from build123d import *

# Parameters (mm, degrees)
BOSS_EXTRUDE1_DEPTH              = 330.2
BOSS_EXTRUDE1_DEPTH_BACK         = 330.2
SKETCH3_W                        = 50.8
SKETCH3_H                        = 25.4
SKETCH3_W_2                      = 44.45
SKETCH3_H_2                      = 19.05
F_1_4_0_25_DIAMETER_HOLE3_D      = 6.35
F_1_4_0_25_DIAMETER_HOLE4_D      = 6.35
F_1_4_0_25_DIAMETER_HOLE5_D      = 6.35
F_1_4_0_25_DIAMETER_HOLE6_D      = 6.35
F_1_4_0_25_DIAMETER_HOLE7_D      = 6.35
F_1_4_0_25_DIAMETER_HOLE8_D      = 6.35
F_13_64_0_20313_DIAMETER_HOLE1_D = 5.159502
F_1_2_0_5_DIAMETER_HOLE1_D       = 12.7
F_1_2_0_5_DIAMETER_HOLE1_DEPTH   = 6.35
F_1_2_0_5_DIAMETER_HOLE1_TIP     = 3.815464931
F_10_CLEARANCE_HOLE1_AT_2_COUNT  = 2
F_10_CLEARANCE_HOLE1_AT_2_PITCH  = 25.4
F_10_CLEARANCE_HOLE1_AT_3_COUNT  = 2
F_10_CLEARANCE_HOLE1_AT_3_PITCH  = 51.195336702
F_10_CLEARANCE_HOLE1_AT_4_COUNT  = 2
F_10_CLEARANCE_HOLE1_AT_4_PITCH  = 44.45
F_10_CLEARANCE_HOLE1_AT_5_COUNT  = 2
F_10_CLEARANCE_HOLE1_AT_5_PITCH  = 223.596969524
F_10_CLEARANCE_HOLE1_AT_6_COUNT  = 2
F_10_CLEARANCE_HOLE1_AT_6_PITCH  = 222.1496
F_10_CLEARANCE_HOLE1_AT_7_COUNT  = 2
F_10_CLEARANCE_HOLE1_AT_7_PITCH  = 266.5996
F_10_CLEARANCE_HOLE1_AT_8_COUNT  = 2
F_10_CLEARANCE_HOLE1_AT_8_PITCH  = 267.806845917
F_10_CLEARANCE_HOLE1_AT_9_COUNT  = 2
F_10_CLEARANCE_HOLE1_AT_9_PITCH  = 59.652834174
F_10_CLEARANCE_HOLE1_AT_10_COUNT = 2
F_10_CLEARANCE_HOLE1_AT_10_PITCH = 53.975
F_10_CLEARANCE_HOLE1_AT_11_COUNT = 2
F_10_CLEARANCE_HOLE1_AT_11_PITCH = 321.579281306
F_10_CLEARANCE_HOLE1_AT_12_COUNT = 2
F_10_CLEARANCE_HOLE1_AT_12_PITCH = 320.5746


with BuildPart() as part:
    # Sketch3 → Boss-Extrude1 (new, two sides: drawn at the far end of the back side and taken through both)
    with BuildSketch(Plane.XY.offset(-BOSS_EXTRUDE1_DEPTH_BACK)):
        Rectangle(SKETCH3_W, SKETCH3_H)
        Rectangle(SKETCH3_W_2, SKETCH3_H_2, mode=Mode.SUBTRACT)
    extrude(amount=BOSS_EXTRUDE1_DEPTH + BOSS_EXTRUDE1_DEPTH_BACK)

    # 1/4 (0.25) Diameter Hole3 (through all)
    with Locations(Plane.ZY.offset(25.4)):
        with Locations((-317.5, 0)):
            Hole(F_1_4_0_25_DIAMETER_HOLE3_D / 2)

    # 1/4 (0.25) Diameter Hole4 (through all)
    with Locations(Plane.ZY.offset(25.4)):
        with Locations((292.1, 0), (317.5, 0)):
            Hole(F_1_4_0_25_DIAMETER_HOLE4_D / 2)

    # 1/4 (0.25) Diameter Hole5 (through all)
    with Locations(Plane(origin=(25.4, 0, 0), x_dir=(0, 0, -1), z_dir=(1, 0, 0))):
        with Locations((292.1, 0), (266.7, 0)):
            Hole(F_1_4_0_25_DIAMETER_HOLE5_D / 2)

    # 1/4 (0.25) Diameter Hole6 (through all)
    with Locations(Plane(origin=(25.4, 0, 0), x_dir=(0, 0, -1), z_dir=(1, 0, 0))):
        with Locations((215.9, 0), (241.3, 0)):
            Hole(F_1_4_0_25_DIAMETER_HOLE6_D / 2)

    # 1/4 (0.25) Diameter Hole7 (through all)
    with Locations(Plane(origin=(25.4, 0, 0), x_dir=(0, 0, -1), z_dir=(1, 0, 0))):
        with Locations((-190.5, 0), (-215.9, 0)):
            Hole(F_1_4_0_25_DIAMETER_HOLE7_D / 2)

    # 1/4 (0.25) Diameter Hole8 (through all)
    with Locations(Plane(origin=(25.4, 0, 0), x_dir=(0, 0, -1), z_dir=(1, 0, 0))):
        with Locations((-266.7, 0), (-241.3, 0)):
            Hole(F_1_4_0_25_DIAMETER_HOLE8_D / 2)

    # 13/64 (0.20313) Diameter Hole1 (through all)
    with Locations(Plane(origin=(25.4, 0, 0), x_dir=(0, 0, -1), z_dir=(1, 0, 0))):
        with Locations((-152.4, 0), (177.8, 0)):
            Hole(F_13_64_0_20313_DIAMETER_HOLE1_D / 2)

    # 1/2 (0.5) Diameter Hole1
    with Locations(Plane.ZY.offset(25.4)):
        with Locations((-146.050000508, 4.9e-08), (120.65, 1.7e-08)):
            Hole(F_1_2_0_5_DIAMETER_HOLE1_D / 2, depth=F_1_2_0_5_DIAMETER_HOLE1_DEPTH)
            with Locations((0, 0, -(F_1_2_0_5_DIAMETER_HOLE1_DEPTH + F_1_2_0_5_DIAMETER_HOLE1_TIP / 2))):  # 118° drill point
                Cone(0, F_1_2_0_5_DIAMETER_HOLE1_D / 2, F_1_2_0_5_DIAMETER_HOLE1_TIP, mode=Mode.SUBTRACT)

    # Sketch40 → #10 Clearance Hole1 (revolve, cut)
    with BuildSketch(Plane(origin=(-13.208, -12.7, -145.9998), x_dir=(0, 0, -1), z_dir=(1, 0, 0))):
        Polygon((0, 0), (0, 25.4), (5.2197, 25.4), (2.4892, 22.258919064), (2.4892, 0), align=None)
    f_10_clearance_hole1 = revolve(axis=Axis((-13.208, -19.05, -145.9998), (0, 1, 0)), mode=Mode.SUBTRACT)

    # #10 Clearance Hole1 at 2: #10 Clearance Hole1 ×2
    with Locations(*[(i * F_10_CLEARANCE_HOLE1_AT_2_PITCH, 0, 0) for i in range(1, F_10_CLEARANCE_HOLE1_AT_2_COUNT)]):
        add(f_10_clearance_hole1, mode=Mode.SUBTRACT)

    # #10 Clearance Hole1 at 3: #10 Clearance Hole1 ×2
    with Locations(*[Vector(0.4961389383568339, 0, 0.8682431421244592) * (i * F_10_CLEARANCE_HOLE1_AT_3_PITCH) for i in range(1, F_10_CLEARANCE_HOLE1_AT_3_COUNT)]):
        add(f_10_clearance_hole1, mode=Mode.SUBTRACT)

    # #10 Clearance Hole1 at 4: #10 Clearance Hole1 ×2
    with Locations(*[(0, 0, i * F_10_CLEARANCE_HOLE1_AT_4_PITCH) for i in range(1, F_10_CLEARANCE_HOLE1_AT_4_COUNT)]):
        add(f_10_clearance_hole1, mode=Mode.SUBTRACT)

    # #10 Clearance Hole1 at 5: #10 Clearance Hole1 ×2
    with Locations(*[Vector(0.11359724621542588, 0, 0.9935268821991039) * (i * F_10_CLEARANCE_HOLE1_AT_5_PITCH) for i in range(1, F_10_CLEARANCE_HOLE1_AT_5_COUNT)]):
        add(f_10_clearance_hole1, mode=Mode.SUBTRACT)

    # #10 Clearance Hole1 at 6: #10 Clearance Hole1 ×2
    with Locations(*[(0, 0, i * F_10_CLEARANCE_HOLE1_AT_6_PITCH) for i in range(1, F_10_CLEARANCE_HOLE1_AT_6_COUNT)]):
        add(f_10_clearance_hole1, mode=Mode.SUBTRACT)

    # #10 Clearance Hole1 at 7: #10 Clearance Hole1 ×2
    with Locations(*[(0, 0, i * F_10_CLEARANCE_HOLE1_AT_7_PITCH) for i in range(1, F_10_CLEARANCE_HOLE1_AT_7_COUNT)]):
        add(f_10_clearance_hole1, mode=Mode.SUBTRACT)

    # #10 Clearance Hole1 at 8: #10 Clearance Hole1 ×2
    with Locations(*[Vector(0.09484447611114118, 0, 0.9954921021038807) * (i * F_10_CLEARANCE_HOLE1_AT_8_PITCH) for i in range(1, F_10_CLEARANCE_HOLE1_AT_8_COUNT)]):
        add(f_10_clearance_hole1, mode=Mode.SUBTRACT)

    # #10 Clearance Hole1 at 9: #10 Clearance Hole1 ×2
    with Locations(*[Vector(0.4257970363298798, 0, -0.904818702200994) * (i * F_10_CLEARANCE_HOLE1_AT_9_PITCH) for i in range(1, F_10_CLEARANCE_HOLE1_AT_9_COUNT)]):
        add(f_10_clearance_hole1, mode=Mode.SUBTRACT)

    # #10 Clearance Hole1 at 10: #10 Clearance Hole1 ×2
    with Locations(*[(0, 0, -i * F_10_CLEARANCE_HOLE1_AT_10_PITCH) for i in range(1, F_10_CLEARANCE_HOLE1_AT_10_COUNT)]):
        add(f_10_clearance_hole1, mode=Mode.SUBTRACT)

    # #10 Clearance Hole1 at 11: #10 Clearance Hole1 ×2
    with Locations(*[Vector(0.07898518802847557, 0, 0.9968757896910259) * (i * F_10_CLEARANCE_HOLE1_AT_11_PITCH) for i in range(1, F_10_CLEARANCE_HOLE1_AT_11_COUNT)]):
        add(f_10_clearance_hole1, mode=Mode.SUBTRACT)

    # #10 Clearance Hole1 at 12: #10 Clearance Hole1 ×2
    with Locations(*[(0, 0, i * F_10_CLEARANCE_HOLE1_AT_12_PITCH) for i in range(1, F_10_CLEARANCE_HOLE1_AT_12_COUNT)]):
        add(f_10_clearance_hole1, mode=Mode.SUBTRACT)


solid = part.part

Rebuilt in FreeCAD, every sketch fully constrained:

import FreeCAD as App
import Part
import Sketcher
from FreeCAD import Vector
Q = App.Units.Quantity

doc = App.newDocument("Part")
body = doc.addObject("PartDesign::Body", "Body")

sketch1 = doc.addObject("Sketcher::SketchObject", "Sketch")
body.addObject(sketch1)
sketch1.AttachmentSupport = (doc.XY_Plane, [""])
sketch1.MapMode = "FlatFace"
sketch1.addGeometry(Part.LineSegment(Vector(-25.4, 12.7, 0), Vector(-25.4, -12.7, 0)), False)
sketch1.addGeometry(Part.LineSegment(Vector(-25.4, -12.7, 0), Vector(25.4, -12.7, 0)), False)
sketch1.addGeometry(Part.LineSegment(Vector(25.4, -12.7, 0), Vector(25.4, 12.7, 0)), False)
sketch1.addGeometry(Part.LineSegment(Vector(25.4, 12.7, 0), Vector(-25.4, 12.7, 0)), False)
sketch1.addGeometry(Part.LineSegment(Vector(22.225, -9.525, 0), Vector(-22.225, -9.525, 0)), False)
sketch1.addGeometry(Part.LineSegment(Vector(-22.225, -9.525, 0), Vector(-22.225, 9.525, 0)), False)
sketch1.addGeometry(Part.LineSegment(Vector(-22.225, 9.525, 0), Vector(22.225, 9.525, 0)), False)
sketch1.addGeometry(Part.LineSegment(Vector(22.225, 9.525, 0), Vector(22.225, -9.525, 0)), False)
sketch1.addConstraint(Sketcher.Constraint("Coincident", 0, 2, 1, 1))
sketch1.addConstraint(Sketcher.Constraint("Coincident", 1, 2, 2, 1))
sketch1.addConstraint(Sketcher.Constraint("Coincident", 2, 2, 3, 1))
sketch1.addConstraint(Sketcher.Constraint("Coincident", 3, 2, 0, 1))
sketch1.addConstraint(Sketcher.Constraint("Coincident", 4, 2, 5, 1))
sketch1.addConstraint(Sketcher.Constraint("Coincident", 5, 2, 6, 1))
sketch1.addConstraint(Sketcher.Constraint("Coincident", 6, 2, 7, 1))
sketch1.addConstraint(Sketcher.Constraint("Coincident", 7, 2, 4, 1))
sketch1.addConstraint(Sketcher.Constraint("Vertical", 0))
sketch1.addConstraint(Sketcher.Constraint("Horizontal", 1))
sketch1.addConstraint(Sketcher.Constraint("Vertical", 2))
sketch1.addConstraint(Sketcher.Constraint("Horizontal", 3))
sketch1.addConstraint(Sketcher.Constraint("Horizontal", 4))
sketch1.addConstraint(Sketcher.Constraint("Vertical", 5))
sketch1.addConstraint(Sketcher.Constraint("Horizontal", 6))
sketch1.addConstraint(Sketcher.Constraint("Vertical", 7))
sketch1.addConstraint(Sketcher.Constraint("Symmetric", 0, 2, 2, 2, -1, 1))
sketch1.addConstraint(Sketcher.Constraint("Symmetric", 4, 2, 6, 2, -1, 1))
sketch1.addConstraint(Sketcher.Constraint("DistanceX", 1, 1, 1, 2, Q("2 in")))
sketch1.addConstraint(Sketcher.Constraint("DistanceY", 0, 2, 0, 1, Q("1 in")))
sketch1.addConstraint(Sketcher.Constraint("DistanceX", 4, 2, 4, 1, Q("1.75 in")))
sketch1.addConstraint(Sketcher.Constraint("DistanceY", 5, 1, 5, 2, Q("0.75 in")))
pad1 = doc.addObject("PartDesign::Pad", "Pad")
body.addObject(pad1)
pad1.Profile = sketch1
pad1.Type = "TwoLengths"
pad1.Length = Q("13 in")
pad1.Length2 = Q("13 in")

sketch2 = doc.addObject("Sketcher::SketchObject", "Sketch001")
body.addObject(sketch2)
sketch2.AttachmentSupport = (doc.YZ_Plane, [""])
sketch2.MapMode = "FlatFace"
sketch2.AttachmentOffset = App.Placement(Vector(0, 0, -1 * 25.4), App.Rotation())
sketch2.addGeometry(Part.Circle(Vector(0, -317.5, 0), Vector(0, 0, 1), 3.175), False)
sketch2.addConstraint(Sketcher.Constraint("PointOnObject", 0, 3, -2))
sketch2.addConstraint(Sketcher.Constraint("Diameter", 0, Q("0.25 in")))
sketch2.addConstraint(Sketcher.Constraint("DistanceY", 0, 3, -1, 1, Q("12.5 in")))
doc.recompute()
hole = doc.addObject("PartDesign::Hole", "Hole")
body.addObject(hole)
hole.Profile = sketch2
hole.ThreadType = "None"
hole.Diameter = Q("0.25 in")
hole.DepthType = "ThroughAll"
hole.Reversed = True

sketch3 = doc.addObject("Sketcher::SketchObject", "Sketch002")
body.addObject(sketch3)
sketch3.AttachmentSupport = (doc.YZ_Plane, [""])
sketch3.MapMode = "FlatFace"
sketch3.AttachmentOffset = App.Placement(Vector(0, 0, -1 * 25.4), App.Rotation())
sketch3.addGeometry(Part.Circle(Vector(0, 292.1, 0), Vector(0, 0, 1), 3.175), False)
sketch3.addGeometry(Part.Circle(Vector(0, 317.5, 0), Vector(0, 0, 1), 3.175), False)
sketch3.addConstraint(Sketcher.Constraint("Equal", 0, 1))
sketch3.addConstraint(Sketcher.Constraint("PointOnObject", 0, 3, -2))
sketch3.addConstraint(Sketcher.Constraint("PointOnObject", 1, 3, -2))
sketch3.addConstraint(Sketcher.Constraint("Diameter", 0, Q("0.25 in")))
sketch3.addConstraint(Sketcher.Constraint("DistanceY", 0, 3, 1, 3, Q("1 in")))
sketch3.addConstraint(Sketcher.Constraint("DistanceY", -1, 1, 0, 3, Q("11.5 in")))
doc.recompute()
hole2 = doc.addObject("PartDesign::Hole", "Hole001")
body.addObject(hole2)
hole2.Profile = sketch3
hole2.ThreadType = "None"
hole2.Diameter = Q("0.25 in")
hole2.DepthType = "ThroughAll"
hole2.Reversed = True

sketch4 = doc.addObject("Sketcher::SketchObject", "Sketch003")
body.addObject(sketch4)
sketch4.AttachmentSupport = (doc.YZ_Plane, [""])
sketch4.MapMode = "FlatFace"
sketch4.AttachmentOffset = App.Placement(Vector(0, 0, 1 * 25.4), App.Rotation())
sketch4.addGeometry(Part.Circle(Vector(0, -292.1, 0), Vector(0, 0, 1), 3.175), False)
sketch4.addGeometry(Part.Circle(Vector(0, -266.7, 0), Vector(0, 0, 1), 3.175), False)
sketch4.addConstraint(Sketcher.Constraint("Equal", 0, 1))
sketch4.addConstraint(Sketcher.Constraint("PointOnObject", 0, 3, -2))
sketch4.addConstraint(Sketcher.Constraint("PointOnObject", 1, 3, -2))
sketch4.addConstraint(Sketcher.Constraint("Diameter", 0, Q("0.25 in")))
sketch4.addConstraint(Sketcher.Constraint("DistanceY", 0, 3, 1, 3, Q("1 in")))
sketch4.addConstraint(Sketcher.Constraint("DistanceY", 0, 3, -1, 1, Q("11.5 in")))
doc.recompute()
hole3 = doc.addObject("PartDesign::Hole", "Hole002")
body.addObject(hole3)
hole3.Profile = sketch4
hole3.ThreadType = "None"
hole3.Diameter = Q("0.25 in")
hole3.DepthType = "ThroughAll"

sketch5 = doc.addObject("Sketcher::SketchObject", "Sketch004")
body.addObject(sketch5)
sketch5.AttachmentSupport = (doc.YZ_Plane, [""])
sketch5.MapMode = "FlatFace"
sketch5.AttachmentOffset = App.Placement(Vector(0, 0, 1 * 25.4), App.Rotation())
sketch5.addGeometry(Part.Circle(Vector(0, -215.9, 0), Vector(0, 0, 1), 3.175), False)
sketch5.addGeometry(Part.Circle(Vector(0, -241.3, 0), Vector(0, 0, 1), 3.175), False)
sketch5.addConstraint(Sketcher.Constraint("Equal", 0, 1))
sketch5.addConstraint(Sketcher.Constraint("PointOnObject", 0, 3, -2))
sketch5.addConstraint(Sketcher.Constraint("PointOnObject", 1, 3, -2))
sketch5.addConstraint(Sketcher.Constraint("Diameter", 0, Q("0.25 in")))
sketch5.addConstraint(Sketcher.Constraint("DistanceY", 1, 3, 0, 3, Q("1 in")))
sketch5.addConstraint(Sketcher.Constraint("DistanceY", 0, 3, -1, 1, Q("8.5 in")))
doc.recompute()
hole4 = doc.addObject("PartDesign::Hole", "Hole003")
body.addObject(hole4)
hole4.Profile = sketch5
hole4.ThreadType = "None"
hole4.Diameter = Q("0.25 in")
hole4.DepthType = "ThroughAll"

sketch6 = doc.addObject("Sketcher::SketchObject", "Sketch005")
body.addObject(sketch6)
sketch6.AttachmentSupport = (doc.YZ_Plane, [""])
sketch6.MapMode = "FlatFace"
sketch6.AttachmentOffset = App.Placement(Vector(0, 0, 1 * 25.4), App.Rotation())
sketch6.addGeometry(Part.Circle(Vector(0, 190.5, 0), Vector(0, 0, 1), 3.175), False)
sketch6.addGeometry(Part.Circle(Vector(0, 215.9, 0), Vector(0, 0, 1), 3.175), False)
sketch6.addConstraint(Sketcher.Constraint("Equal", 0, 1))
sketch6.addConstraint(Sketcher.Constraint("PointOnObject", 0, 3, -2))
sketch6.addConstraint(Sketcher.Constraint("PointOnObject", 1, 3, -2))
sketch6.addConstraint(Sketcher.Constraint("Diameter", 0, Q("0.25 in")))
sketch6.addConstraint(Sketcher.Constraint("DistanceY", 0, 3, 1, 3, Q("1 in")))
sketch6.addConstraint(Sketcher.Constraint("DistanceY", -1, 1, 0, 3, Q("7.5 in")))
doc.recompute()
hole5 = doc.addObject("PartDesign::Hole", "Hole004")
body.addObject(hole5)
hole5.Profile = sketch6
hole5.ThreadType = "None"
hole5.Diameter = Q("0.25 in")
hole5.DepthType = "ThroughAll"

sketch7 = doc.addObject("Sketcher::SketchObject", "Sketch006")
body.addObject(sketch7)
sketch7.AttachmentSupport = (doc.YZ_Plane, [""])
sketch7.MapMode = "FlatFace"
sketch7.AttachmentOffset = App.Placement(Vector(0, 0, 1 * 25.4), App.Rotation())
sketch7.addGeometry(Part.Circle(Vector(0, 266.7, 0), Vector(0, 0, 1), 3.175), False)
sketch7.addGeometry(Part.Circle(Vector(0, 241.3, 0), Vector(0, 0, 1), 3.175), False)
sketch7.addConstraint(Sketcher.Constraint("Equal", 0, 1))
sketch7.addConstraint(Sketcher.Constraint("PointOnObject", 0, 3, -2))
sketch7.addConstraint(Sketcher.Constraint("PointOnObject", 1, 3, -2))
sketch7.addConstraint(Sketcher.Constraint("Diameter", 0, Q("0.25 in")))
sketch7.addConstraint(Sketcher.Constraint("DistanceY", 1, 3, 0, 3, Q("1 in")))
sketch7.addConstraint(Sketcher.Constraint("DistanceY", -1, 1, 0, 3, Q("10.5 in")))
doc.recompute()
hole6 = doc.addObject("PartDesign::Hole", "Hole005")
body.addObject(hole6)
hole6.Profile = sketch7
hole6.ThreadType = "None"
hole6.Diameter = Q("0.25 in")
hole6.DepthType = "ThroughAll"

sketch8 = doc.addObject("Sketcher::SketchObject", "Sketch007")
body.addObject(sketch8)
sketch8.AttachmentSupport = (doc.YZ_Plane, [""])
sketch8.MapMode = "FlatFace"
sketch8.AttachmentOffset = App.Placement(Vector(0, 0, 1 * 25.4), App.Rotation())
sketch8.addGeometry(Part.Circle(Vector(0, 152.4, 0), Vector(0, 0, 1), 2.579751), False)
sketch8.addGeometry(Part.Circle(Vector(0, -177.8, 0), Vector(0, 0, 1), 2.579751), False)
sketch8.addConstraint(Sketcher.Constraint("Equal", 0, 1))
sketch8.addConstraint(Sketcher.Constraint("PointOnObject", 0, 3, -2))
sketch8.addConstraint(Sketcher.Constraint("PointOnObject", 1, 3, -2))
sketch8.addConstraint(Sketcher.Constraint("DistanceY", -1, 1, 0, 3, Q("6 in")))
sketch8.addConstraint(Sketcher.Constraint("DistanceY", 1, 3, -1, 1, Q("7 in")))
sketch8.addConstraint(Sketcher.Constraint("Diameter", 0, 5.159502))
doc.recompute()
hole7 = doc.addObject("PartDesign::Hole", "Hole006")
body.addObject(hole7)
hole7.Profile = sketch8
hole7.ThreadType = "None"
hole7.Diameter = 5.159502
hole7.DepthType = "ThroughAll"

sketch9 = doc.addObject("Sketcher::SketchObject", "Sketch008")
body.addObject(sketch9)
sketch9.AttachmentSupport = (doc.YZ_Plane, [""])
sketch9.MapMode = "FlatFace"
sketch9.AttachmentOffset = App.Placement(Vector(0, 0, -1 * 25.4), App.Rotation())
sketch9.addGeometry(Part.Circle(Vector(0, -146.050001, 0), Vector(0, 0, 1), 6.35), False)
sketch9.addGeometry(Part.Circle(Vector(0, 120.65, 0), Vector(0, 0, 1), 6.35), False)
sketch9.addConstraint(Sketcher.Constraint("Equal", 0, 1))
sketch9.addConstraint(Sketcher.Constraint("PointOnObject", 0, 3, -2))
sketch9.addConstraint(Sketcher.Constraint("PointOnObject", 1, 3, -2))
sketch9.addConstraint(Sketcher.Constraint("Diameter", 0, Q("0.5 in")))
sketch9.addConstraint(Sketcher.Constraint("DistanceY", 0, 3, 1, 3, Q("10.5 in")))
sketch9.addConstraint(Sketcher.Constraint("DistanceY", 0, 3, -1, 1, Q("5.75 in")))
doc.recompute()
hole8 = doc.addObject("PartDesign::Hole", "Hole007")
body.addObject(hole8)
hole8.Profile = sketch9
hole8.ThreadType = "None"
hole8.Diameter = Q("0.5 in")
hole8.DepthType = "Dimension"
hole8.Depth = Q("0.25 in")
hole8.DrillPoint = "Angled"
hole8.DrillPointAngle = 118
hole8.Reversed = True

sketch10 = doc.addObject("Sketcher::SketchObject", "Sketch009")
body.addObject(sketch10)
sketch10.AttachmentSupport = (doc.YZ_Plane, [""])
sketch10.MapMode = "FlatFace"
sketch10.AttachmentOffset = App.Placement(Vector(0, 0, -0.52 * 25.4), App.Rotation())
sketch10.addGeometry(Part.LineSegment(Vector(12.7, -145.9998, 0), Vector(-12.7, -145.9998, 0)), False)
sketch10.addGeometry(Part.LineSegment(Vector(-12.7, -145.9998, 0), Vector(-12.7, -148.489, 0)), False)
sketch10.addGeometry(Part.LineSegment(Vector(-12.7, -148.489, 0), Vector(9.558919, -148.489, 0)), False)
sketch10.addGeometry(Part.LineSegment(Vector(9.558919, -148.489, 0), Vector(12.7, -151.2195, 0)), False)
sketch10.addGeometry(Part.LineSegment(Vector(12.7, -151.2195, 0), Vector(12.7, -145.9998, 0)), False)
sketch10.addGeometry(Part.LineSegment(Vector(-12.7, -145.9998, 0), Vector(12.7, -145.9998, 0)), True)
sketch10.addConstraint(Sketcher.Constraint("Coincident", 0, 2, 1, 1))
sketch10.addConstraint(Sketcher.Constraint("Coincident", 1, 2, 2, 1))
sketch10.addConstraint(Sketcher.Constraint("Coincident", 2, 2, 3, 1))
sketch10.addConstraint(Sketcher.Constraint("Coincident", 3, 2, 4, 1))
sketch10.addConstraint(Sketcher.Constraint("Coincident", 4, 2, 0, 1))
sketch10.addConstraint(Sketcher.Constraint("Horizontal", 0))
sketch10.addConstraint(Sketcher.Constraint("Vertical", 1))
sketch10.addConstraint(Sketcher.Constraint("Horizontal", 2))
sketch10.addConstraint(Sketcher.Constraint("Vertical", 4))
sketch10.addConstraint(Sketcher.Constraint("Horizontal", 5))
sketch10.addConstraint(Sketcher.Constraint("Coincident", 5, 1, 0, 2))
sketch10.addConstraint(Sketcher.Constraint("Vertical", 3, 2, 5, 2))
sketch10.addConstraint(Sketcher.Constraint("DistanceX", 0, 2, 0, 1, Q("1 in")))
sketch10.addConstraint(Sketcher.Constraint("Angle", 3, Q("-41 deg")))
sketch10.addConstraint(Sketcher.Constraint("DistanceX", 0, 2, -1, 1, Q("0.5 in")))
sketch10.addConstraint(Sketcher.Constraint("DistanceY", 1, 2, 1, 1, Q("0.098 in")))
sketch10.addConstraint(Sketcher.Constraint("DistanceY", 4, 1, 4, 2, Q("0.2055 in")))
sketch10.addConstraint(Sketcher.Constraint("DistanceY", 0, 2, -1, 1, 145.9998))
groove = doc.addObject("PartDesign::Groove", "Groove")
body.addObject(groove)
groove.Profile = sketch10
groove.ReferenceAxis = (sketch10, ["Axis0"])
groove.Angle = 360
doc.recompute()

linearpattern = doc.addObject("PartDesign::LinearPattern", "LinearPattern")
body.addObject(linearpattern)
linearpattern.Originals = [groove]
linearpattern.Direction = (doc.X_Axis, [""])
linearpattern.Mode = "offset"
linearpattern.Offset = Q("1 in")
linearpattern.Occurrences = 2
body.Tip = linearpattern
doc.recompute()

datumline = doc.addObject("PartDesign::Line", "DatumLine")
body.addObject(datumline)
datumline.Placement = App.Placement(Vector(0, 0, 0), App.Rotation(Vector(0, 0, 1), Vector(0.496138938, 0, 0.868243142)))
linearpattern2 = doc.addObject("PartDesign::LinearPattern", "LinearPattern001")
body.addObject(linearpattern2)
linearpattern2.Originals = [groove]
linearpattern2.Direction = (datumline, [""])
linearpattern2.Mode = "offset"
linearpattern2.Offset = 51.195337
linearpattern2.Occurrences = 2
body.Tip = linearpattern2
doc.recompute()

linearpattern3 = doc.addObject("PartDesign::LinearPattern", "LinearPattern002")
body.addObject(linearpattern3)
linearpattern3.Originals = [groove]
linearpattern3.Direction = (doc.Z_Axis, [""])
linearpattern3.Mode = "offset"
linearpattern3.Offset = Q("1.75 in")
linearpattern3.Occurrences = 2
body.Tip = linearpattern3
doc.recompute()

datumline2 = doc.addObject("PartDesign::Line", "DatumLine001")
body.addObject(datumline2)
datumline2.Placement = App.Placement(Vector(0, 0, 0), App.Rotation(Vector(0, 0, 1), Vector(0.113597246, 0, 0.993526882)))
linearpattern4 = doc.addObject("PartDesign::LinearPattern", "LinearPattern003")
body.addObject(linearpattern4)
linearpattern4.Originals = [groove]
linearpattern4.Direction = (datumline2, [""])
linearpattern4.Mode = "offset"
linearpattern4.Offset = 223.59697
linearpattern4.Occurrences = 2
body.Tip = linearpattern4
doc.recompute()

linearpattern5 = doc.addObject("PartDesign::LinearPattern", "LinearPattern004")
body.addObject(linearpattern5)
linearpattern5.Originals = [groove]
linearpattern5.Direction = (doc.Z_Axis, [""])
linearpattern5.Mode = "offset"
linearpattern5.Offset = 222.1496
linearpattern5.Occurrences = 2
body.Tip = linearpattern5
doc.recompute()

linearpattern6 = doc.addObject("PartDesign::LinearPattern", "LinearPattern005")
body.addObject(linearpattern6)
linearpattern6.Originals = [groove]
linearpattern6.Direction = (doc.Z_Axis, [""])
linearpattern6.Mode = "offset"
linearpattern6.Offset = 266.5996
linearpattern6.Occurrences = 2
body.Tip = linearpattern6
doc.recompute()

datumline3 = doc.addObject("PartDesign::Line", "DatumLine002")
body.addObject(datumline3)
datumline3.Placement = App.Placement(Vector(0, 0, 0), App.Rotation(Vector(0, 0, 1), Vector(0.094844476, 0, 0.995492102)))
linearpattern7 = doc.addObject("PartDesign::LinearPattern", "LinearPattern006")
body.addObject(linearpattern7)
linearpattern7.Originals = [groove]
linearpattern7.Direction = (datumline3, [""])
linearpattern7.Mode = "offset"
linearpattern7.Offset = 267.806846
linearpattern7.Occurrences = 2
body.Tip = linearpattern7
doc.recompute()

datumline4 = doc.addObject("PartDesign::Line", "DatumLine003")
body.addObject(datumline4)
datumline4.Placement = App.Placement(Vector(0, 0, 0), App.Rotation(Vector(0, 0, 1), Vector(0.425797036, 0, -0.904818702)))
linearpattern8 = doc.addObject("PartDesign::LinearPattern", "LinearPattern007")
body.addObject(linearpattern8)
linearpattern8.Originals = [groove]
linearpattern8.Direction = (datumline4, [""])
linearpattern8.Mode = "offset"
linearpattern8.Offset = 59.652834
linearpattern8.Occurrences = 2
body.Tip = linearpattern8
doc.recompute()

linearpattern9 = doc.addObject("PartDesign::LinearPattern", "LinearPattern008")
body.addObject(linearpattern9)
linearpattern9.Originals = [groove]
linearpattern9.Direction = (doc.Z_Axis, [""])
linearpattern9.Mode = "offset"
linearpattern9.Offset = Q("2.125 in")
linearpattern9.Occurrences = 2
linearpattern9.Reversed = True
body.Tip = linearpattern9
doc.recompute()

datumline5 = doc.addObject("PartDesign::Line", "DatumLine004")
body.addObject(datumline5)
datumline5.Placement = App.Placement(Vector(0, 0, 0), App.Rotation(Vector(0, 0, 1), Vector(0.078985188, 0, 0.99687579)))
linearpattern10 = doc.addObject("PartDesign::LinearPattern", "LinearPattern009")
body.addObject(linearpattern10)
linearpattern10.Originals = [groove]
linearpattern10.Direction = (datumline5, [""])
linearpattern10.Mode = "offset"
linearpattern10.Offset = 321.579281
linearpattern10.Occurrences = 2
body.Tip = linearpattern10
doc.recompute()

linearpattern11 = doc.addObject("PartDesign::LinearPattern", "LinearPattern010")
body.addObject(linearpattern11)
linearpattern11.Originals = [groove]
linearpattern11.Direction = (doc.Z_Axis, [""])
linearpattern11.Mode = "offset"
linearpattern11.Offset = 320.5746
linearpattern11.Occurrences = 2
body.Tip = linearpattern11

doc.recompute()
